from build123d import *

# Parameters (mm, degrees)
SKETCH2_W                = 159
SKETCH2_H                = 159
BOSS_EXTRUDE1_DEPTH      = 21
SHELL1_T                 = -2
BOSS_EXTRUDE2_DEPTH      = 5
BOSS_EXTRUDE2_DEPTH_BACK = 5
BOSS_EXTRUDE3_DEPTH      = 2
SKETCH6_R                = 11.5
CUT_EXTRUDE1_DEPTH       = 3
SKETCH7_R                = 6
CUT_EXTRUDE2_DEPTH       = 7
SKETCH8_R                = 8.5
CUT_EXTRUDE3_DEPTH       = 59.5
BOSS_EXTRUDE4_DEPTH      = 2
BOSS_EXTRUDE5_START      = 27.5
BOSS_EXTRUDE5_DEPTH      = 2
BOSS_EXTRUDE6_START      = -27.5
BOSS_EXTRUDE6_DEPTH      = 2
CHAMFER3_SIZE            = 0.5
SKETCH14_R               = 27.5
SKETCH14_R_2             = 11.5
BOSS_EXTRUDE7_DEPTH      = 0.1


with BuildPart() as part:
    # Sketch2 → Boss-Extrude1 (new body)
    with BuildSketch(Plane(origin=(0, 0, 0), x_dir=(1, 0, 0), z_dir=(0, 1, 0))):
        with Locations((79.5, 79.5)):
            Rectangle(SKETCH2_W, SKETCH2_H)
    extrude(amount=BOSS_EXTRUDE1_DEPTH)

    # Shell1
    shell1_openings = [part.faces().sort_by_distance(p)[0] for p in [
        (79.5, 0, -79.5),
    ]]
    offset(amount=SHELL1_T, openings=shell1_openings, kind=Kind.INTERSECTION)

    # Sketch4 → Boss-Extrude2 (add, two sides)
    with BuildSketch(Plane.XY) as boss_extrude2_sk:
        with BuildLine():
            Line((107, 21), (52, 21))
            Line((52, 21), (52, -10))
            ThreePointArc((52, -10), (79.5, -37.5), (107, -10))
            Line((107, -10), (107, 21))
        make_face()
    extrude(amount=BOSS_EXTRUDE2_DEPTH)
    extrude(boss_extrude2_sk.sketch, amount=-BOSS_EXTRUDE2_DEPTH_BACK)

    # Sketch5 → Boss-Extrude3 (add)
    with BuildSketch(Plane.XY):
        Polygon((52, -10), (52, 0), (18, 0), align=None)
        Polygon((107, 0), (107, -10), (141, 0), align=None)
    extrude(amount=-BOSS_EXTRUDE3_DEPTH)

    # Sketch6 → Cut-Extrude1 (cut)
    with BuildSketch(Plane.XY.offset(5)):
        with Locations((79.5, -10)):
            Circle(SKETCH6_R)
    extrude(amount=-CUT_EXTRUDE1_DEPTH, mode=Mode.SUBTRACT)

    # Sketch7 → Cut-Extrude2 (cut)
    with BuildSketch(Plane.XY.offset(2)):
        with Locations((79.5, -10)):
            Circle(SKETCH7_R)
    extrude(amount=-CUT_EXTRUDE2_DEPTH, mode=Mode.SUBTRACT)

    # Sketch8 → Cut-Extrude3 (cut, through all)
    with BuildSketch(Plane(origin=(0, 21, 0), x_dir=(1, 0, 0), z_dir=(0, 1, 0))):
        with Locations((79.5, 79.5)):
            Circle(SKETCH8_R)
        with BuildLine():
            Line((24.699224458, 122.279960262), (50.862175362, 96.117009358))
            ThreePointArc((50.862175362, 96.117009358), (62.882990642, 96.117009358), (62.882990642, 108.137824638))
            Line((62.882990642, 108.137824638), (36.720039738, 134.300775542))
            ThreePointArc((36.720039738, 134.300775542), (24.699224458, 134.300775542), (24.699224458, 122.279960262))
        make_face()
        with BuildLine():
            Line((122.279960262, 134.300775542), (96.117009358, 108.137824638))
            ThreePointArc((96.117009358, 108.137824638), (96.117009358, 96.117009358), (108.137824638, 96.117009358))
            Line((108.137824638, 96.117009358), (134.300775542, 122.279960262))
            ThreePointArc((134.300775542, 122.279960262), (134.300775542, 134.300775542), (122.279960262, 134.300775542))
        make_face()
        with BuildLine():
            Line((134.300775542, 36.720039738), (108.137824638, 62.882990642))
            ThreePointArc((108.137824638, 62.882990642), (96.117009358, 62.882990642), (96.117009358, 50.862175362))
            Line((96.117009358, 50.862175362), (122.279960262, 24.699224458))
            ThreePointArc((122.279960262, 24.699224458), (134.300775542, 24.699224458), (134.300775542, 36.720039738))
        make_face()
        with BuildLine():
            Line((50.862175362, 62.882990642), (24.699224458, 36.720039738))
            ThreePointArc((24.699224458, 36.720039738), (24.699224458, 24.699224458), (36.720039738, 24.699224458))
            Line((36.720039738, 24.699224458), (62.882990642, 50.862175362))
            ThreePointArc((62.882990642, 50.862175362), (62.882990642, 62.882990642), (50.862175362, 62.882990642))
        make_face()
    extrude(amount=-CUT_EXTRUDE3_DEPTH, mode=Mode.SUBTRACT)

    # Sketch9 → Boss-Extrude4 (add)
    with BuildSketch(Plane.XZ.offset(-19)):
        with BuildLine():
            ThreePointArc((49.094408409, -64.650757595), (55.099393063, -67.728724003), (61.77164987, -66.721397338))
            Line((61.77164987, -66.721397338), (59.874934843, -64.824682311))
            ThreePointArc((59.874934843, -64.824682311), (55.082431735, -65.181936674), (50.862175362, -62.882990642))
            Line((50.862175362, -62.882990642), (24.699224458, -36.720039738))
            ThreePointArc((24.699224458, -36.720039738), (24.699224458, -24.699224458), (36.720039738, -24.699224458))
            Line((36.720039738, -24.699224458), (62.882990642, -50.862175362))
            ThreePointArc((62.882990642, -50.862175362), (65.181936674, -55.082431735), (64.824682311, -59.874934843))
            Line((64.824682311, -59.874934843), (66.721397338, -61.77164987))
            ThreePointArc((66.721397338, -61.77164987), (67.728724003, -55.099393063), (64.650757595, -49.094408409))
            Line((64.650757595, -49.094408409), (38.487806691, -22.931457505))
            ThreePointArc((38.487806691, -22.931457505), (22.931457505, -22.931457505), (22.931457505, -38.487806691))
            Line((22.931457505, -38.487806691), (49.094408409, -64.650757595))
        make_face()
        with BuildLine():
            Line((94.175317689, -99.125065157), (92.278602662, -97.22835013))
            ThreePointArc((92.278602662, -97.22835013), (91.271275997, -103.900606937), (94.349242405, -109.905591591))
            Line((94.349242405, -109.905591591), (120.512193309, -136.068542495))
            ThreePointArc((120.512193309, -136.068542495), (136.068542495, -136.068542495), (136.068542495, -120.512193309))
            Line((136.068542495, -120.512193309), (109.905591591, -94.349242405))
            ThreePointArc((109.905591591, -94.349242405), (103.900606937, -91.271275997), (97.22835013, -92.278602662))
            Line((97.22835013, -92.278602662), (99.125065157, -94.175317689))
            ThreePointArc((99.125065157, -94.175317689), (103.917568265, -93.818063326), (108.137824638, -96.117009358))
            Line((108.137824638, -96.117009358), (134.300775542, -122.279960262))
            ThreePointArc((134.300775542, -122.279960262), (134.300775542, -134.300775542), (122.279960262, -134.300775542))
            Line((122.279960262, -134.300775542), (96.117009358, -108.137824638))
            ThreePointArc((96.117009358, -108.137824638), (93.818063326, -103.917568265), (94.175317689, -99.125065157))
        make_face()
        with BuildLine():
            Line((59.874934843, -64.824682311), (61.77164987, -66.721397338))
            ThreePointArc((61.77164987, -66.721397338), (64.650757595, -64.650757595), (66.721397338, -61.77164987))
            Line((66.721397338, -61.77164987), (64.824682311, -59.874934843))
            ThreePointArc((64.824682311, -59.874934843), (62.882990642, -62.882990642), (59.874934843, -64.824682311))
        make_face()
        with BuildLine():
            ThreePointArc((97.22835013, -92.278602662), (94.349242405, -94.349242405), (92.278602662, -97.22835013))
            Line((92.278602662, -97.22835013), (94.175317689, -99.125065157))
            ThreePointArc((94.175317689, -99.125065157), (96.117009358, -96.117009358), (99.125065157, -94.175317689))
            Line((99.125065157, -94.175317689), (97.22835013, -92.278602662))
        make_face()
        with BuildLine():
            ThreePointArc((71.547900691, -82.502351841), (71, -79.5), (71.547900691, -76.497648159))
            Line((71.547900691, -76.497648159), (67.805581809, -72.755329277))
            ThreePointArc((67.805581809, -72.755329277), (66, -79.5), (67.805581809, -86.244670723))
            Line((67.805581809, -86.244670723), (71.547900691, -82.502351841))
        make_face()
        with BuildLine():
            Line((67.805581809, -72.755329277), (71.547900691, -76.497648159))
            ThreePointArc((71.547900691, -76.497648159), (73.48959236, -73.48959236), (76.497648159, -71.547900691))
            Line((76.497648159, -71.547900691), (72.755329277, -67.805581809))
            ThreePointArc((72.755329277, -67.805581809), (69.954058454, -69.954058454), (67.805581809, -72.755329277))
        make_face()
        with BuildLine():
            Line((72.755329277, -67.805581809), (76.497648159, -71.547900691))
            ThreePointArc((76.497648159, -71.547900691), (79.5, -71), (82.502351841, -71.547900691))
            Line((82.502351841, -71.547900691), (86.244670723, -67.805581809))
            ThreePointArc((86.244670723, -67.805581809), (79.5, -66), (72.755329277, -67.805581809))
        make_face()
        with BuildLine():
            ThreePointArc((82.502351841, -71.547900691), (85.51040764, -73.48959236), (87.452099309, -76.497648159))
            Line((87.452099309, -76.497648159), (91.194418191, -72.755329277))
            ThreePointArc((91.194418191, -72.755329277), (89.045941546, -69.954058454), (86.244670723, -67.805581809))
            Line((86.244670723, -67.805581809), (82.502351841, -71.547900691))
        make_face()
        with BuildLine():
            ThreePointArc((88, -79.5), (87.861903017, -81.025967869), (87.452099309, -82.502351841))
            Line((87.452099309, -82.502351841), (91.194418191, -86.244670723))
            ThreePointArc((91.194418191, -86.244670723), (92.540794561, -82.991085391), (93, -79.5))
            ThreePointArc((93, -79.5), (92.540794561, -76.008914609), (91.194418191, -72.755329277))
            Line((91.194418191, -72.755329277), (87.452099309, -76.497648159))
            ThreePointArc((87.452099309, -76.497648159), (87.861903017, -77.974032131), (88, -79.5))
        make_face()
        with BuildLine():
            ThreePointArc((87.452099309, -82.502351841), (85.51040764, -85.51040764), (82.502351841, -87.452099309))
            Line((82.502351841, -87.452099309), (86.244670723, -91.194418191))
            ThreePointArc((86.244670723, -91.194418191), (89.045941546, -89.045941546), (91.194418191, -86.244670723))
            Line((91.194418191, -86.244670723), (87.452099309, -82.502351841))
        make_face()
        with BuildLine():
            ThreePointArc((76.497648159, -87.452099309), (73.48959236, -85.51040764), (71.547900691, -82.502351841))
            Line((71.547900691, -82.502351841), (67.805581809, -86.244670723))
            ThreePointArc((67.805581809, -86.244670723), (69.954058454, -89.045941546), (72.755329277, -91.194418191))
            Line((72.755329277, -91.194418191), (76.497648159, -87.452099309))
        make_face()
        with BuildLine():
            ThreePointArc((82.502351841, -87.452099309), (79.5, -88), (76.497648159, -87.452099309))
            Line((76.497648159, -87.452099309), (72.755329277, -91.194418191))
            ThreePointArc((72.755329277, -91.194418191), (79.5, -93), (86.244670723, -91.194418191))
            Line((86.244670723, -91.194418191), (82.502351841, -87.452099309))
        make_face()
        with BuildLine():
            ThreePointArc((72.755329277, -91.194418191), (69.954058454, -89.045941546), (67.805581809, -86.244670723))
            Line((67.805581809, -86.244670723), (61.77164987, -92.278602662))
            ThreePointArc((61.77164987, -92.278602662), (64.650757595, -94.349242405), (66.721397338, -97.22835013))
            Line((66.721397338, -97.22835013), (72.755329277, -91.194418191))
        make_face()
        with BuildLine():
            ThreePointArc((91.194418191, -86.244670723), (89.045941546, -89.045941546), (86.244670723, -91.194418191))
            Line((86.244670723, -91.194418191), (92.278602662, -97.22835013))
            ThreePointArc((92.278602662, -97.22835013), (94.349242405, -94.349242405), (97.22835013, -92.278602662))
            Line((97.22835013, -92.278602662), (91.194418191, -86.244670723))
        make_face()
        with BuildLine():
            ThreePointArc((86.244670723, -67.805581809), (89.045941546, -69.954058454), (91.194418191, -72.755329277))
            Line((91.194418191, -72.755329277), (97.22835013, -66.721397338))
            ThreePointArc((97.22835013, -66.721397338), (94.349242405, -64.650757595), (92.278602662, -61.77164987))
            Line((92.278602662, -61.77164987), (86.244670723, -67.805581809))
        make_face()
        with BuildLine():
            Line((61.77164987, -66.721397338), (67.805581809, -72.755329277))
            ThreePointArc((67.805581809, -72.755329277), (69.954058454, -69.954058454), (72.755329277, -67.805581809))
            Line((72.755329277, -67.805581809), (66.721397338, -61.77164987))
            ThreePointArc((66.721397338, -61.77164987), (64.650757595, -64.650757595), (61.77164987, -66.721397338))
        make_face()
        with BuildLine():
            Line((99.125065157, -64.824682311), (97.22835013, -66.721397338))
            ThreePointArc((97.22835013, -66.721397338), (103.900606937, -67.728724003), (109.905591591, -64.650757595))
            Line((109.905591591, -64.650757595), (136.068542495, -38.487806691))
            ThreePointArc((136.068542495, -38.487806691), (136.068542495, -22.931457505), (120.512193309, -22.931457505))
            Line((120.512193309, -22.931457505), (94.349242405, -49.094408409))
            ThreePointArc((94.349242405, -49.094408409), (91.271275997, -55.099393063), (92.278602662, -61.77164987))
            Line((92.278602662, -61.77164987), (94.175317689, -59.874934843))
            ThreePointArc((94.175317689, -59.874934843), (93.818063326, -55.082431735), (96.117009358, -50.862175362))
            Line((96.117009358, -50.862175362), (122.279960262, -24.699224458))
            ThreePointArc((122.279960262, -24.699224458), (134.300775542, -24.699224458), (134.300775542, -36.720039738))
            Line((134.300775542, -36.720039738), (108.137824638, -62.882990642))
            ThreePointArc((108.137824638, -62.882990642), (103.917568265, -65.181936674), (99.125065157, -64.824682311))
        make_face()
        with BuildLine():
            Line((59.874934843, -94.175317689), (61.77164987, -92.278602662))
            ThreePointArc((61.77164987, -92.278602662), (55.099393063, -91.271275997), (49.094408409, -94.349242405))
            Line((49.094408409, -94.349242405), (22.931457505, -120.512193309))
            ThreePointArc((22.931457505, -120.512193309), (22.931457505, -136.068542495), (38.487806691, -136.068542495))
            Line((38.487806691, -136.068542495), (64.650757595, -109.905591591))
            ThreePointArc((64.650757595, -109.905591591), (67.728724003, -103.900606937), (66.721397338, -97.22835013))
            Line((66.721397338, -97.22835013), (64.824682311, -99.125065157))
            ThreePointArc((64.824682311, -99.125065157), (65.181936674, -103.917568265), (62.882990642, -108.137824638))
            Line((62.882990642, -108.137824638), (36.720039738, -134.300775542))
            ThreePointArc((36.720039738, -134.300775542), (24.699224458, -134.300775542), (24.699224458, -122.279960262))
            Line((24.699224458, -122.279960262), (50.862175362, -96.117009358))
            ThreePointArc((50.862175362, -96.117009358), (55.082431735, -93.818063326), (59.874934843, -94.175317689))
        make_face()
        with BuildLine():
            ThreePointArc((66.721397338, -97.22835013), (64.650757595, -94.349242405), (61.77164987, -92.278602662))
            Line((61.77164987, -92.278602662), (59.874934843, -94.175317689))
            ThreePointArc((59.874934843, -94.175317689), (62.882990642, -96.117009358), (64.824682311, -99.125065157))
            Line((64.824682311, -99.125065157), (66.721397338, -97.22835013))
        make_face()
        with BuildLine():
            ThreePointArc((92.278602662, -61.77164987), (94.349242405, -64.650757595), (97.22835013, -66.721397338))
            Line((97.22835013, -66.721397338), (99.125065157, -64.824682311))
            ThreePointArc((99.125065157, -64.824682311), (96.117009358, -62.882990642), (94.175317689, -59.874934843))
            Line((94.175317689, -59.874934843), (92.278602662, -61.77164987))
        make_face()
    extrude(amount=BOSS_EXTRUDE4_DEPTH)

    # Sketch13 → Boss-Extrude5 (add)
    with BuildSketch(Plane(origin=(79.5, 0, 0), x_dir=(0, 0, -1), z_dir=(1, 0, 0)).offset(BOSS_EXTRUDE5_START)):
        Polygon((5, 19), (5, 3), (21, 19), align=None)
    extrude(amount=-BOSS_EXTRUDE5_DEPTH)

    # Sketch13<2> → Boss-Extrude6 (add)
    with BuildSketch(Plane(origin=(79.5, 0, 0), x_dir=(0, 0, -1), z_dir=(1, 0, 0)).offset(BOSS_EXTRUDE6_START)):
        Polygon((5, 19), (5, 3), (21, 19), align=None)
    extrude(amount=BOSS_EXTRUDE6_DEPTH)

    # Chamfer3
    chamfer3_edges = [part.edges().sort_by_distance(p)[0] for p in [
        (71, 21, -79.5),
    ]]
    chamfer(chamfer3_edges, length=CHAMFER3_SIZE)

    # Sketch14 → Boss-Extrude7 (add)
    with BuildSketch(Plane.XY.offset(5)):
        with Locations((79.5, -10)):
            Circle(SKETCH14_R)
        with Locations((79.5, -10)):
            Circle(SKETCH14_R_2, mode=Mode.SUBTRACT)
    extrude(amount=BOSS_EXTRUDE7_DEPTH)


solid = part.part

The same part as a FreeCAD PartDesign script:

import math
import FreeCAD as App
import Part
import Sketcher


def edges_at(feature, points):
    """Names of the edges that pass closest to the given points."""
    edges = feature.Shape.Edges
    near = lambda p: min(range(len(edges)), key=lambda i: edges[i].distToShape(Part.Vertex(*p))[0])
    return sorted({f"Edge{near(p) + 1}" for p in points})


def faces_at(feature, points):
    """Names of the faces that lie closest to the given points."""
    faces = feature.Shape.Faces
    near = lambda p: min(range(len(faces)), key=lambda i: faces[i].distToShape(Part.Vertex(*p))[0])
    return sorted({f"Face{near(p) + 1}" for p in points})


def add_polygon(sketch, points):
    """Adds a closed chain of lines whose ends are joined by coincident constraints."""
    first, n = sketch.GeometryCount, len(points)
    for a, b in zip(points, points[1:] + points[:1]):
        sketch.addGeometry(Part.LineSegment(App.Vector(*a, 0), App.Vector(*b, 0)), False)
    for i in range(n):
        sketch.addConstraint(Sketcher.Constraint("Coincident", first + i, 2, first + (i + 1) % n, 1))

doc = App.newDocument("Part")
body = doc.addObject("PartDesign::Body", "Body")

# Sketch on XZ plane
sketch1 = body.newObject("Sketcher::SketchObject", "Sketch")
sketch1.AttachmentSupport = (doc.getObject("XZ_Plane"), [""])
sketch1.MapMode = "FlatFace"
add_polygon(sketch1, [(0, -159), (0, 0), (159, 0), (159, -159)])  # lines 0-3
sketch1.addConstraint(Sketcher.Constraint("Vertical", 0))
sketch1.addConstraint(Sketcher.Constraint("Horizontal", 1))
sketch1.addConstraint(Sketcher.Constraint("Vertical", 2))
sketch1.addConstraint(Sketcher.Constraint("Horizontal", 3))
sketch1.addConstraint(Sketcher.Constraint("Coincident", 0, 2, -1, 1))
sketch1.addConstraint(Sketcher.Constraint("Equal", 3, 0))
sketch1.addConstraint(Sketcher.Constraint("DistanceX", 1, 1, 1, 2, 159.0))
pad1 = body.newObject("PartDesign::Pad", "Pad")
pad1.Profile = sketch1
pad1.Length = 21
pad1.Reversed = True
doc.recompute()

thickness = body.newObject("PartDesign::Thickness", "Thickness")
thickness.Base = (pad1, faces_at(pad1, [(79.5, 0, -79.5)]))
thickness.Value = 2
thickness.Reversed = True
thickness.Join = "Intersection"

# Sketch on XY plane
sketch2 = body.newObject("Sketcher::SketchObject", "Sketch001")
sketch2.AttachmentSupport = (doc.getObject("XY_Plane"), [""])
sketch2.MapMode = "FlatFace"
sketch2.addGeometry(Part.LineSegment(App.Vector(107, 21, 0), App.Vector(52, 21, 0)), False)
sketch2.addGeometry(Part.LineSegment(App.Vector(52, 21, 0), App.Vector(52, -10, 0)), False)
sketch2.addGeometry(Part.ArcOfCircle(Part.Circle(App.Vector(80, -10, 0), App.Vector(0, 0, 1), 28), math.radians(180), math.radians(360)), False)
sketch2.addGeometry(Part.LineSegment(App.Vector(107, -10, 0), App.Vector(107, 21, 0)), False)
sketch2.addConstraint(Sketcher.Constraint("Coincident", 0, 2, 1, 1))
sketch2.addConstraint(Sketcher.Constraint("Tangent", 1, 2, 2, 1))
sketch2.addConstraint(Sketcher.Constraint("Tangent", 2, 2, 3, 1))
sketch2.addConstraint(Sketcher.Constraint("Coincident", 3, 2, 0, 1))
sketch2.addConstraint(Sketcher.Constraint("Horizontal", 0))
sketch2.addConstraint(Sketcher.Constraint("Vertical", 1))
sketch2.addConstraint(Sketcher.Constraint("Vertical", 3))
sketch2.addConstraint(Sketcher.Constraint("Radius", 2, 27.5))
sketch2.addConstraint(Sketcher.Constraint("DistanceY", 1, 2, 1, 1, 31.0))
sketch2.addConstraint(Sketcher.Constraint("DistanceY", 2, 3, -1, 1, 10.0))
sketch2.addConstraint(Sketcher.Constraint("DistanceX", -1, 1, 0, 2, 52.0))
pad2 = body.newObject("PartDesign::Pad", "Pad001")
pad2.Profile = sketch2
pad2.Type = "TwoLengths"
pad2.Length = 5
pad2.Length2 = 5

# Sketch on XY plane
sketch3 = body.newObject("Sketcher::SketchObject", "Sketch002")
sketch3.AttachmentSupport = (doc.getObject("XY_Plane"), [""])
sketch3.MapMode = "FlatFace"
add_polygon(sketch3, [(52, -10), (52, 0), (18, 0)])  # lines 0-2
add_polygon(sketch3, [(107, 0), (107, -10), (141, 0)])  # lines 3-5
sketch3.addConstraint(Sketcher.Constraint("Vertical", 0))
sketch3.addConstraint(Sketcher.Constraint("Horizontal", 1))
sketch3.addConstraint(Sketcher.Constraint("Vertical", 3))
sketch3.addConstraint(Sketcher.Constraint("Horizontal", 5))
sketch3.addConstraint(Sketcher.Constraint("PointOnObject", 0, 2, -1))
sketch3.addConstraint(Sketcher.Constraint("PointOnObject", 4, 2, -1))
sketch3.addConstraint(Sketcher.Constraint("Horizontal", 2, 2, 3, 2))
sketch3.addConstraint(Sketcher.Constraint("Equal", 1, 5))
sketch3.addConstraint(Sketcher.Constraint("DistanceX", 1, 2, 1, 1, 34.0))
sketch3.addConstraint(Sketcher.Constraint("DistanceY", 0, 1, 0, 2, 10.0))
sketch3.addConstraint(Sketcher.Constraint("DistanceX", -1, 1, 0, 2, 52.0))
sketch3.addConstraint(Sketcher.Constraint("DistanceX", -1, 1, 3, 2, 107.0))
pad3 = body.newObject("PartDesign::Pad", "Pad002")
pad3.Profile = sketch3
pad3.Length = 2
pad3.Reversed = True

# Sketch on XY plane
sketch4 = body.newObject("Sketcher::SketchObject", "Sketch003")
sketch4.AttachmentSupport = (doc.getObject("XY_Plane"), [""])
sketch4.MapMode = "FlatFace"
sketch4.AttachmentOffset = App.Placement(App.Vector(0, 0, 5), App.Rotation())
sketch4.addGeometry(Part.Circle(App.Vector(80, -10, 0), App.Vector(0, 0, 1), 12), False)
sketch4.addConstraint(Sketcher.Constraint("Diameter", 0, 23.0))
sketch4.addConstraint(Sketcher.Constraint("DistanceY", 0, 3, -1, 1, 10.0))
sketch4.addConstraint(Sketcher.Constraint("DistanceX", -1, 1, 0, 3, 79.5))
pocket1 = body.newObject("PartDesign::Pocket", "Pocket")
pocket1.Profile = sketch4
pocket1.Length = 3

# Sketch on XY plane
sketch5 = body.newObject("Sketcher::SketchObject", "Sketch004")
sketch5.AttachmentSupport = (doc.getObject("XY_Plane"), [""])
sketch5.MapMode = "FlatFace"
sketch5.AttachmentOffset = App.Placement(App.Vector(0, 0, 2), App.Rotation())
sketch5.addGeometry(Part.Circle(App.Vector(80, -10, 0), App.Vector(0, 0, 1), 6), False)
sketch5.addConstraint(Sketcher.Constraint("Diameter", 0, 12.0))
sketch5.addConstraint(Sketcher.Constraint("DistanceY", 0, 3, -1, 1, 10.0))
sketch5.addConstraint(Sketcher.Constraint("DistanceX", -1, 1, 0, 3, 79.5))
pocket2 = body.newObject("PartDesign::Pocket", "Pocket001")
pocket2.Profile = sketch5
pocket2.Length = 7

# Sketch on XZ plane
sketch6 = body.newObject("Sketcher::SketchObject", "Sketch005")
sketch6.AttachmentSupport = (doc.getObject("XZ_Plane"), [""])
sketch6.MapMode = "FlatFace"
sketch6.AttachmentOffset = App.Placement(App.Vector(0, 0, -21), App.Rotation())
sketch6.addGeometry(Part.Circle(App.Vector(80, -80, 0), App.Vector(0, 0, 1), 8), False)
sketch6.addGeometry(Part.LineSegment(App.Vector(25, -122, 0), App.Vector(51, -96, 0)), False)
sketch6.addGeometry(Part.ArcOfCircle(Part.Circle(App.Vector(57, -102, 0), App.Vector(0, 0, 1), 8), math.radians(-45), math.radians(135)), False)
sketch6.addGeometry(Part.LineSegment(App.Vector(63, -108, 0), App.Vector(37, -134, 0)), False)
sketch6.addGeometry(Part.ArcOfCircle(Part.Circle(App.Vector(31, -128, 0), App.Vector(0, 0, 1), 8), math.radians(135), math.radians(315)), False)
sketch6.addGeometry(Part.LineSegment(App.Vector(122, -134, 0), App.Vector(96, -108, 0)), False)
sketch6.addGeometry(Part.ArcOfCircle(Part.Circle(App.Vector(102, -102, 0), App.Vector(0, 0, 1), 8), math.radians(45), math.radians(225)), False)
sketch6.addGeometry(Part.LineSegment(App.Vector(108, -96, 0), App.Vector(134, -122, 0)), False)
sketch6.addGeometry(Part.ArcOfCircle(Part.Circle(App.Vector(128, -128, 0), App.Vector(0, 0, 1), 8), math.radians(-135), math.radians(45)), False)
sketch6.addGeometry(Part.LineSegment(App.Vector(134, -37, 0), App.Vector(108, -63, 0)), False)
sketch6.addGeometry(Part.ArcOfCircle(Part.Circle(App.Vector(102, -57, 0), App.Vector(0, 0, 1), 8), math.radians(135), math.radians(315)), False)
sketch6.addGeometry(Part.LineSegment(App.Vector(96, -51, 0), App.Vector(122, -25, 0)), False)
sketch6.addGeometry(Part.ArcOfCircle(Part.Circle(App.Vector(128, -31, 0), App.Vector(0, 0, 1), 8), math.radians(-45), math.radians(135)), False)
sketch6.addGeometry(Part.LineSegment(App.Vector(51, -63, 0), App.Vector(25, -37, 0)), False)
sketch6.addGeometry(Part.ArcOfCircle(Part.Circle(App.Vector(31, -31, 0), App.Vector(0, 0, 1), 8), math.radians(45), math.radians(225)), False)
sketch6.addGeometry(Part.LineSegment(App.Vector(37, -25, 0), App.Vector(63, -51, 0)), False)
sketch6.addGeometry(Part.ArcOfCircle(Part.Circle(App.Vector(57, -57, 0), App.Vector(0, 0, 1), 8), math.radians(-135), math.radians(45)), False)
sketch6.addConstraint(Sketcher.Constraint("Tangent", 1, 2, 2, 2))
sketch6.addConstraint(Sketcher.Constraint("Tangent", 2, 1, 3, 1))
sketch6.addConstraint(Sketcher.Constraint("Tangent", 3, 2, 4, 2))
sketch6.addConstraint(Sketcher.Constraint("Tangent", 4, 1, 1, 1))
sketch6.addConstraint(Sketcher.Constraint("Tangent", 5, 2, 6, 2))
sketch6.addConstraint(Sketcher.Constraint("Tangent", 6, 1, 7, 1))
sketch6.addConstraint(Sketcher.Constraint("Tangent", 7, 2, 8, 2))
sketch6.addConstraint(Sketcher.Constraint("Tangent", 8, 1, 5, 1))
sketch6.addConstraint(Sketcher.Constraint("Tangent", 9, 2, 10, 2))
sketch6.addConstraint(Sketcher.Constraint("Tangent", 10, 1, 11, 1))
sketch6.addConstraint(Sketcher.Constraint("Tangent", 11, 2, 12, 2))
sketch6.addConstraint(Sketcher.Constraint("Tangent", 12, 1, 9, 1))
sketch6.addConstraint(Sketcher.Constraint("Tangent", 13, 2, 14, 2))
sketch6.addConstraint(Sketcher.Constraint("Tangent", 14, 1, 15, 1))
sketch6.addConstraint(Sketcher.Constraint("Tangent", 15, 2, 16, 2))
sketch6.addConstraint(Sketcher.Constraint("Tangent", 16, 1, 13, 1))
sketch6.addConstraint(Sketcher.Constraint("Equal", 0, 2))
sketch6.addConstraint(Sketcher.Constraint("Equal", 2, 4))
sketch6.addConstraint(Sketcher.Constraint("Equal", 4, 6))
sketch6.addConstraint(Sketcher.Constraint("Equal", 6, 8))
sketch6.addConstraint(Sketcher.Constraint("Equal", 8, 10))
sketch6.addConstraint(Sketcher.Constraint("Equal", 10, 12))
sketch6.addConstraint(Sketcher.Constraint("Equal", 12, 14))
sketch6.addConstraint(Sketcher.Constraint("Equal", 14, 16))
sketch6.addConstraint(Sketcher.Constraint("Perpendicular", 3, 5))
sketch6.addConstraint(Sketcher.Constraint("Perpendicular", 7, 9))
sketch6.addConstraint(Sketcher.Constraint("Perpendicular", 11, 13))
sketch6.addConstraint(Sketcher.Constraint("Horizontal", 2, 3, 6, 3))
sketch6.addConstraint(Sketcher.Constraint("Horizontal", 4, 3, 8, 3))
sketch6.addConstraint(Sketcher.Constraint("Horizontal", 12, 3, 14, 3))
sketch6.addConstraint(Sketcher.Constraint("Horizontal", 10, 3, 16, 3))
sketch6.addConstraint(Sketcher.Constraint("Horizontal", 2, 1, 5, 2))
sketch6.addConstraint(Sketcher.Constraint("Vertical", 6, 3, 10, 3))
sketch6.addConstraint(Sketcher.Constraint("Vertical", 8, 3, 12, 3))
sketch6.addConstraint(Sketcher.Constraint("Vertical", 4, 3, 14, 3))
sketch6.addConstraint(Sketcher.Constraint("Diameter", 0, 17.0))
sketch6.addConstraint(Sketcher.Constraint("Distance", 1, 37.0))
sketch6.addConstraint(Sketcher.Constraint("DistanceX", -1, 1, 0, 3, 79.5))
sketch6.addConstraint(Sketcher.Constraint("DistanceY", 0, 3, -1, 1, 79.5))
sketch6.addConstraint(Sketcher.Constraint("DistanceY", 1, 2, -1, 1, 96.117009))
sketch6.addConstraint(Sketcher.Constraint("DistanceX", -1, 1, 2, 1, 62.882991))
sketch6.addConstraint(Sketcher.Constraint("DistanceX", -1, 1, 5, 2, 96.117009))
sketch6.addConstraint(Sketcher.Constraint("DistanceY", 9, 2, -1, 1, 62.882991))
pocket3 = body.newObject("PartDesign::Pocket", "Pocket002")
pocket3.Profile = sketch6
pocket3.Type = "ThroughAll"
pocket3.Reversed = True

# Sketch on XZ plane
sketch7 = body.newObject("Sketcher::SketchObject", "Sketch006")
sketch7.AttachmentSupport = (doc.getObject("XZ_Plane"), [""])
sketch7.MapMode = "FlatFace"
sketch7.AttachmentOffset = App.Placement(App.Vector(0, 0, -19), App.Rotation())
sketch7.addGeometry(Part.ArcOfCircle(Part.Circle(App.Vector(56.9, -56.9, 0), App.Vector(0, 0, 1), 11), math.radians(-135), math.radians(-64)), False)
sketch7.addGeometry(Part.LineSegment(App.Vector(61.8, -66.7, 0), App.Vector(67.8, -72.8, 0)), False)
sketch7.addGeometry(Part.ArcOfCircle(Part.Circle(App.Vector(79.5, -79.5, 0), App.Vector(0, 0, 1), 13.5), math.radians(150), math.radians(210)), False)
sketch7.addGeometry(Part.LineSegment(App.Vector(67.8, -86.2, 0), App.Vector(61.8, -92.3, 0)), False)
sketch7.addGeometry(Part.ArcOfCircle(Part.Circle(App.Vector(56.9, -102.1, 0), App.Vector(0, 0, 1), 11), math.radians(64), math.radians(135)), False)
sketch7.addGeometry(Part.LineSegment(App.Vector(49.1, -94.3, 0), App.Vector(22.9, -120.5, 0)), False)
sketch7.addGeometry(Part.ArcOfCircle(Part.Circle(App.Vector(30.7, -128.3, 0), App.Vector(0, 0, 1), 11), math.radians(135), math.radians(315)), False)
sketch7.addGeometry(Part.LineSegment(App.Vector(38.5, -136.1, 0), App.Vector(64.7, -109.9, 0)), False)
sketch7.addGeometry(Part.ArcOfCircle(Part.Circle(App.Vector(56.9, -102.1, 0), App.Vector(0, 0, 1), 11), math.radians(-45), math.radians(26)), False)
sketch7.addGeometry(Part.LineSegment(App.Vector(66.7, -97.2, 0), App.Vector(72.8, -91.2, 0)), False)
sketch7.addGeometry(Part.ArcOfCircle(Part.Circle(App.Vector(79.5, -79.5, 0), App.Vector(0, 0, 1), 13.5), math.radians(-120), math.radians(-60)), False)
sketch7.addGeometry(Part.LineSegment(App.Vector(86.2, -91.2, 0), App.Vector(92.3, -97.2, 0)), False)
sketch7.addGeometry(Part.ArcOfCircle(Part.Circle(App.Vector(102.1, -102.1, 0), App.Vector(0, 0, 1), 11), math.radians(154), math.radians(225)), False)
sketch7.addGeometry(Part.LineSegment(App.Vector(94.3, -109.9, 0), App.Vector(120.5, -136.1, 0)), False)
sketch7.addGeometry(Part.ArcOfCircle(Part.Circle(App.Vector(128.3, -128.3, 0), App.Vector(0, 0, 1), 11), math.radians(-135), math.radians(45)), False)
sketch7.addGeometry(Part.LineSegment(App.Vector(136.1, -120.5, 0), App.Vector(109.9, -94.3, 0)), False)
sketch7.addGeometry(Part.ArcOfCircle(Part.Circle(App.Vector(102.1, -102.1, 0), App.Vector(0, 0, 1), 11), math.radians(45), math.radians(116)), False)
sketch7.addGeometry(Part.LineSegment(App.Vector(97.2, -92.3, 0), App.Vector(91.2, -86.2, 0)), False)
sketch7.addGeometry(Part.ArcOfCircle(Part.Circle(App.Vector(79.5, -79.5, 0), App.Vector(0, 0, 1), 13.5), math.radians(-30), math.radians(0)), False)
sketch7.addGeometry(Part.ArcOfCircle(Part.Circle(App.Vector(79.5, -79.5, 0), App.Vector(0, 0, 1), 13.5), math.radians(0), math.radians(30)), False)
sketch7.addGeometry(Part.LineSegment(App.Vector(91.2, -72.8, 0), App.Vector(97.2, -66.7, 0)), False)
sketch7.addGeometry(Part.ArcOfCircle(Part.Circle(App.Vector(102.1, -56.9, 0), App.Vector(0, 0, 1), 11), math.radians(-116), math.radians(-45)), False)
sketch7.addGeometry(Part.LineSegment(App.Vector(109.9, -64.7, 0), App.Vector(136.1, -38.5, 0)), False)
sketch7.addGeometry(Part.ArcOfCircle(Part.Circle(App.Vector(128.3, -30.7, 0), App.Vector(0, 0, 1), 11), math.radians(-45), math.radians(135)), False)
sketch7.addGeometry(Part.LineSegment(App.Vector(120.5, -22.9, 0), App.Vector(94.3, -49.1, 0)), False)
sketch7.addGeometry(Part.ArcOfCircle(Part.Circle(App.Vector(102.1, -56.9, 0), App.Vector(0, 0, 1), 11), math.radians(135), math.radians(206)), False)
sketch7.addGeometry(Part.LineSegment(App.Vector(92.3, -61.8, 0), App.Vector(86.2, -67.8, 0)), False)
sketch7.addGeometry(Part.ArcOfCircle(Part.Circle(App.Vector(79.5, -79.5, 0), App.Vector(0, 0, 1), 13.5), math.radians(60), math.radians(120)), False)
sketch7.addGeometry(Part.LineSegment(App.Vector(72.8, -67.8, 0), App.Vector(66.7, -61.8, 0)), False)
sketch7.addGeometry(Part.ArcOfCircle(Part.Circle(App.Vector(56.9, -56.9, 0), App.Vector(0, 0, 1), 11), math.radians(-26), math.radians(45)), False)
sketch7.addGeometry(Part.LineSegment(App.Vector(64.7, -49.1, 0), App.Vector(38.5, -22.9, 0)), False)
sketch7.addGeometry(Part.ArcOfCircle(Part.Circle(App.Vector(30.7, -30.7, 0), App.Vector(0, 0, 1), 11), math.radians(45), math.radians(225)), False)
sketch7.addGeometry(Part.LineSegment(App.Vector(22.9, -38.5, 0), App.Vector(49.1, -64.7, 0)), False)
sketch7.addGeometry(Part.ArcOfCircle(Part.Circle(App.Vector(56.9, -56.9, 0), App.Vector(0, 0, 1), 8.5), math.radians(-135), math.radians(-69)), False)
sketch7.addGeometry(Part.LineSegment(App.Vector(50.9, -62.9, 0), App.Vector(24.7, -36.7, 0)), False)
sketch7.addGeometry(Part.ArcOfCircle(Part.Circle(App.Vector(30.7, -30.7, 0), App.Vector(0, 0, 1), 8.5), math.radians(45), math.radians(225)), False)
sketch7.addGeometry(Part.LineSegment(App.Vector(36.7, -24.7, 0), App.Vector(62.9, -50.9, 0)), False)
sketch7.addGeometry(Part.ArcOfCircle(Part.Circle(App.Vector(56.9, -56.9, 0), App.Vector(0, 0, 1), 8.5), math.radians(-21), math.radians(45)), False)
sketch7.addGeometry(Part.ArcOfCircle(Part.Circle(App.Vector(56.9, -56.9, 0), App.Vector(0, 0, 1), 8.5), math.radians(-69), math.radians(-21)), False)
sketch7.addGeometry(Part.ArcOfCircle(Part.Circle(App.Vector(79.5, -79.5, 0), App.Vector(0, 0, 1), 8.5), math.radians(-159), math.radians(-111)), False)
sketch7.addGeometry(Part.ArcOfCircle(Part.Circle(App.Vector(79.5, -79.5, 0), App.Vector(0, 0, 1), 8.5), math.radians(159), math.radians(201)), False)
sketch7.addGeometry(Part.ArcOfCircle(Part.Circle(App.Vector(79.5, -79.5, 0), App.Vector(0, 0, 1), 8.5), math.radians(111), math.radians(159)), False)
sketch7.addGeometry(Part.ArcOfCircle(Part.Circle(App.Vector(79.5, -79.5, 0), App.Vector(0, 0, 1), 8.5), math.radians(69), math.radians(111)), False)
sketch7.addGeometry(Part.ArcOfCircle(Part.Circle(App.Vector(79.5, -79.5, 0), App.Vector(0, 0, 1), 8.5), math.radians(21), math.radians(69)), False)
sketch7.addGeometry(Part.ArcOfCircle(Part.Circle(App.Vector(79.5, -79.5, 0), App.Vector(0, 0, 1), 8.5), math.radians(0), math.radians(21)), False)
sketch7.addGeometry(Part.ArcOfCircle(Part.Circle(App.Vector(79.5, -79.5, 0), App.Vector(0, 0, 1), 8.5), math.radians(-21), math.radians(0)), False)
sketch7.addGeometry(Part.ArcOfCircle(Part.Circle(App.Vector(79.5, -79.5, 0), App.Vector(0, 0, 1), 8.5), math.radians(-69), math.radians(-21)), False)
sketch7.addGeometry(Part.ArcOfCircle(Part.Circle(App.Vector(79.5, -79.5, 0), App.Vector(0, 0, 1), 8.5), math.radians(-111), math.radians(-69)), False)
sketch7.addGeometry(Part.ArcOfCircle(Part.Circle(App.Vector(102.1, -102.1, 0), App.Vector(0, 0, 1), 8.5), math.radians(45), math.radians(111)), False)
sketch7.addGeometry(Part.LineSegment(App.Vector(108.1, -96.1, 0), App.Vector(134.3, -122.3, 0)), False)
sketch7.addGeometry(Part.ArcOfCircle(Part.Circle(App.Vector(128.3, -128.3, 0), App.Vector(0, 0, 1), 8.5), math.radians(-135), math.radians(45)), False)
sketch7.addGeometry(Part.LineSegment(App.Vector(122.3, -134.3, 0), App.Vector(96.1, -108.1, 0)), False)
sketch7.addGeometry(Part.ArcOfCircle(Part.Circle(App.Vector(102.1, -102.1, 0), App.Vector(0, 0, 1), 8.5), math.radians(159), math.radians(225)), False)
sketch7.addGeometry(Part.ArcOfCircle(Part.Circle(App.Vector(102.1, -102.1, 0), App.Vector(0, 0, 1), 8.5), math.radians(111), math.radians(159)), False)
sketch7.addGeometry(Part.ArcOfCircle(Part.Circle(App.Vector(56.9, -102.1, 0), App.Vector(0, 0, 1), 8.5), math.radians(21), math.radians(69)), False)
sketch7.addGeometry(Part.ArcOfCircle(Part.Circle(App.Vector(56.9, -102.1, 0), App.Vector(0, 0, 1), 8.5), math.radians(-45), math.radians(21)), False)
sketch7.addGeometry(Part.LineSegment(App.Vector(62.9, -108.1, 0), App.Vector(36.7, -134.3, 0)), False)
sketch7.addGeometry(Part.ArcOfCircle(Part.Circle(App.Vector(30.7, -128.3, 0), App.Vector(0, 0, 1), 8.5), math.radians(135), math.radians(315)), False)
sketch7.addGeometry(Part.LineSegment(App.Vector(24.7, -122.3, 0), App.Vector(50.9, -96.1, 0)), False)
sketch7.addGeometry(Part.ArcOfCircle(Part.Circle(App.Vector(56.9, -102.1, 0), App.Vector(0, 0, 1), 8.5), math.radians(69), math.radians(135)), False)
sketch7.addGeometry(Part.ArcOfCircle(Part.Circle(App.Vector(102.1, -56.9, 0), App.Vector(0, 0, 1), 8.5), math.radians(-159), math.radians(-111)), False)
sketch7.addGeometry(Part.ArcOfCircle(Part.Circle(App.Vector(102.1, -56.9, 0), App.Vector(0, 0, 1), 8.5), math.radians(135), math.radians(201)), False)
sketch7.addGeometry(Part.LineSegment(App.Vector(96.1, -50.9, 0), App.Vector(122.3, -24.7, 0)), False)
sketch7.addGeometry(Part.ArcOfCircle(Part.Circle(App.Vector(128.3, -30.7, 0), App.Vector(0, 0, 1), 8.5), math.radians(-45), math.radians(135)), False)
sketch7.addGeometry(Part.LineSegment(App.Vector(134.3, -36.7, 0), App.Vector(108.1, -62.9, 0)), False)
sketch7.addGeometry(Part.ArcOfCircle(Part.Circle(App.Vector(102.1, -56.9, 0), App.Vector(0, 0, 1), 8.5), math.radians(-111), math.radians(-45)), False)
sketch7.addConstraint(Sketcher.Constraint("Coincident", 0, 2, 1, 1))
sketch7.addConstraint(Sketcher.Constraint("Coincident", 1, 2, 2, 1))
sketch7.addConstraint(Sketcher.Constraint("Coincident", 2, 2, 3, 1))
sketch7.addConstraint(Sketcher.Constraint("Coincident", 3, 2, 4, 1))
sketch7.addConstraint(Sketcher.Constraint("Tangent", 4, 2, 5, 1))
sketch7.addConstraint(Sketcher.Constraint("Tangent", 5, 2, 6, 1))
sketch7.addConstraint(Sketcher.Constraint("Tangent", 6, 2, 7, 1))
sketch7.addConstraint(Sketcher.Constraint("Tangent", 7, 2, 8, 1))
sketch7.addConstraint(Sketcher.Constraint("Coincident", 8, 2, 9, 1))
sketch7.addConstraint(Sketcher.Constraint("Coincident", 9, 2, 10, 1))
sketch7.addConstraint(Sketcher.Constraint("Coincident", 10, 2, 11, 1))
sketch7.addConstraint(Sketcher.Constraint("Coincident", 11, 2, 12, 1))
sketch7.addConstraint(Sketcher.Constraint("Tangent", 12, 2, 13, 1))
sketch7.addConstraint(Sketcher.Constraint("Tangent", 13, 2, 14, 1))
sketch7.addConstraint(Sketcher.Constraint("Tangent", 14, 2, 15, 1))
sketch7.addConstraint(Sketcher.Constraint("Tangent", 15, 2, 16, 1))
sketch7.addConstraint(Sketcher.Constraint("Coincident", 16, 2, 17, 1))
sketch7.addConstraint(Sketcher.Constraint("Coincident", 17, 2, 18, 1))
sketch7.addConstraint(Sketcher.Constraint("Tangent", 18, 2, 19, 1))
sketch7.addConstraint(Sketcher.Constraint("Coincident", 19, 2, 20, 1))
sketch7.addConstraint(Sketcher.Constraint("Coincident", 20, 2, 21, 1))
sketch7.addConstraint(Sketcher.Constraint("Tangent", 21, 2, 22, 1))
sketch7.addConstraint(Sketcher.Constraint("Tangent", 22, 2, 23, 1))
sketch7.addConstraint(Sketcher.Constraint("Tangent", 23, 2, 24, 1))
sketch7.addConstraint(Sketcher.Constraint("Tangent", 24, 2, 25, 1))
sketch7.addConstraint(Sketcher.Constraint("Coincident", 25, 2, 26, 1))
sketch7.addConstraint(Sketcher.Constraint("Coincident", 26, 2, 27, 1))
sketch7.addConstraint(Sketcher.Constraint("Coincident", 27, 2, 28, 1))
sketch7.addConstraint(Sketcher.Constraint("Coincident", 28, 2, 29, 1))
sketch7.addConstraint(Sketcher.Constraint("Tangent", 29, 2, 30, 1))
sketch7.addConstraint(Sketcher.Constraint("Tangent", 30, 2, 31, 1))
sketch7.addConstraint(Sketcher.Constraint("Tangent", 31, 2, 32, 1))
sketch7.addConstraint(Sketcher.Constraint("Tangent", 32, 2, 0, 1))
sketch7.addConstraint(Sketcher.Constraint("Tangent", 33, 1, 34, 1))
sketch7.addConstraint(Sketcher.Constraint("Tangent", 34, 2, 35, 2))
sketch7.addConstraint(Sketcher.Constraint("Tangent", 35, 1, 36, 1))
sketch7.addConstraint(Sketcher.Constraint("Tangent", 36, 2, 37, 2))
sketch7.addConstraint(Sketcher.Constraint("Tangent", 37, 1, 38, 2))
sketch7.addConstraint(Sketcher.Constraint("Tangent", 38, 1, 33, 2))
sketch7.addConstraint(Sketcher.Constraint("Tangent", 39, 1, 40, 2))
sketch7.addConstraint(Sketcher.Constraint("Tangent", 40, 1, 41, 2))
sketch7.addConstraint(Sketcher.Constraint("Tangent", 41, 1, 42, 2))
sketch7.addConstraint(Sketcher.Constraint("Tangent", 42, 1, 43, 2))
sketch7.addConstraint(Sketcher.Constraint("Tangent", 43, 1, 44, 2))
sketch7.addConstraint(Sketcher.Constraint("Tangent", 44, 1, 45, 2))
sketch7.addConstraint(Sketcher.Constraint("Tangent", 45, 1, 46, 2))
sketch7.addConstraint(Sketcher.Constraint("Tangent", 46, 1, 47, 2))
sketch7.addConstraint(Sketcher.Constraint("Tangent", 47, 1, 39, 2))
sketch7.addConstraint(Sketcher.Constraint("Tangent", 48, 1, 49, 1))
sketch7.addConstraint(Sketcher.Constraint("Tangent", 49, 2, 50, 2))
sketch7.addConstraint(Sketcher.Constraint("Tangent", 50, 1, 51, 1))
sketch7.addConstraint(Sketcher.Constraint("Tangent", 51, 2, 52, 2))
sketch7.addConstraint(Sketcher.Constraint("Tangent", 52, 1, 53, 2))
sketch7.addConstraint(Sketcher.Constraint("Tangent", 53, 1, 48, 2))
sketch7.addConstraint(Sketcher.Constraint("Tangent", 54, 1, 55, 2))
sketch7.addConstraint(Sketcher.Constraint("Tangent", 55, 1, 56, 1))
sketch7.addConstraint(Sketcher.Constraint("Tangent", 56, 2, 57, 2))
sketch7.addConstraint(Sketcher.Constraint("Tangent", 57, 1, 58, 1))
sketch7.addConstraint(Sketcher.Constraint("Tangent", 58, 2, 59, 2))
sketch7.addConstraint(Sketcher.Constraint("Tangent", 59, 1, 54, 2))
sketch7.addConstraint(Sketcher.Constraint("Tangent", 60, 1, 61, 2))
sketch7.addConstraint(Sketcher.Constraint("Tangent", 61, 1, 62, 1))
sketch7.addConstraint(Sketcher.Constraint("Tangent", 62, 2, 63, 2))
sketch7.addConstraint(Sketcher.Constraint("Tangent", 63, 1, 64, 1))
sketch7.addConstraint(Sketcher.Constraint("Tangent", 64, 2, 65, 2))
sketch7.addConstraint(Sketcher.Constraint("Tangent", 65, 1, 60, 2))
sketch7.addConstraint(Sketcher.Constraint("Coincident", 8, 3, 4, 3))
sketch7.addConstraint(Sketcher.Constraint("Coincident", 10, 3, 2, 3))
sketch7.addConstraint(Sketcher.Constraint("Coincident", 16, 3, 12, 3))
sketch7.addConstraint(Sketcher.Constraint("Coincident", 18, 3, 2, 3))
sketch7.addConstraint(Sketcher.Constraint("Coincident", 25, 3, 21, 3))
sketch7.addConstraint(Sketcher.Constraint("Coincident", 27, 3, 2, 3))
sketch7.addConstraint(Sketcher.Constraint("Coincident", 29, 3, 0, 3))
sketch7.addConstraint(Sketcher.Constraint("Coincident", 33, 3, 0, 3))
sketch7.addConstraint(Sketcher.Constraint("Coincident", 35, 3, 31, 3))
sketch7.addConstraint(Sketcher.Constraint("Coincident", 37, 3, 0, 3))
sketch7.addConstraint(Sketcher.Constraint("Coincident", 39, 3, 2, 3))
sketch7.addConstraint(Sketcher.Constraint("Coincident", 41, 3, 2, 3))
sketch7.addConstraint(Sketcher.Constraint("Coincident", 43, 3, 2, 3))
sketch7.addConstraint(Sketcher.Constraint("Coincident", 45, 3, 2, 3))
sketch7.addConstraint(Sketcher.Constraint("Coincident", 48, 3, 12, 3))
sketch7.addConstraint(Sketcher.Constraint("Coincident", 50, 3, 14, 3))
sketch7.addConstraint(Sketcher.Constraint("Coincident", 52, 3, 12, 3))
sketch7.addConstraint(Sketcher.Constraint("Coincident", 54, 3, 4, 3))
sketch7.addConstraint(Sketcher.Constraint("Coincident", 57, 3, 6, 3))
sketch7.addConstraint(Sketcher.Constraint("Coincident", 60, 3, 21, 3))
sketch7.addConstraint(Sketcher.Constraint("Coincident", 63, 3, 23, 3))
sketch7.addConstraint(Sketcher.Constraint("Equal", 0, 4))
sketch7.addConstraint(Sketcher.Constraint("Equal", 4, 6))
sketch7.addConstraint(Sketcher.Constraint("Equal", 6, 8))
sketch7.addConstraint(Sketcher.Constraint("Equal", 2, 10))
sketch7.addConstraint(Sketcher.Constraint("Equal", 8, 12))
sketch7.addConstraint(Sketcher.Constraint("Equal", 12, 14))
sketch7.addConstraint(Sketcher.Constraint("Equal", 14, 16))
sketch7.addConstraint(Sketcher.Constraint("Equal", 10, 18))
sketch7.addConstraint(Sketcher.Constraint("Equal", 18, 19))
sketch7.addConstraint(Sketcher.Constraint("Equal", 16, 21))
sketch7.addConstraint(Sketcher.Constraint("Equal", 21, 23))
sketch7.addConstraint(Sketcher.Constraint("Equal", 23, 25))
sketch7.addConstraint(Sketcher.Constraint("Equal", 19, 27))
sketch7.addConstraint(Sketcher.Constraint("Equal", 25, 29))
sketch7.addConstraint(Sketcher.Constraint("Equal", 29, 31))
sketch7.addConstraint(Sketcher.Constraint("Equal", 33, 35))
sketch7.addConstraint(Sketcher.Constraint("Equal", 38, 39))
sketch7.addConstraint(Sketcher.Constraint("Equal", 47, 48))
sketch7.addConstraint(Sketcher.Constraint("Equal", 48, 50))
sketch7.addConstraint(Sketcher.Constraint("Equal", 53, 54))
sketch7.addConstraint(Sketcher.Constraint("Equal", 54, 55))
sketch7.addConstraint(Sketcher.Constraint("Equal", 55, 57))
sketch7.addConstraint(Sketcher.Constraint("Equal", 57, 59))
sketch7.addConstraint(Sketcher.Constraint("Equal", 59, 60))
sketch7.addConstraint(Sketcher.Constraint("Equal", 60, 61))
sketch7.addConstraint(Sketcher.Constraint("Equal", 61, 63))
sketch7.addConstraint(Sketcher.Constraint("Equal", 63, 65))
sketch7.addConstraint(Sketcher.Constraint("Perpendicular", 1, 3))
sketch7.addConstraint(Sketcher.Constraint("Parallel", 3, 5))
sketch7.addConstraint(Sketcher.Constraint("Parallel", 7, 9))
sketch7.addConstraint(Sketcher.Constraint("Perpendicular", 9, 11))
sketch7.addConstraint(Sketcher.Constraint("Parallel", 11, 13))
sketch7.addConstraint(Sketcher.Constraint("Parallel", 15, 17))
sketch7.addConstraint(Sketcher.Constraint("Perpendicular", 17, 20))
sketch7.addConstraint(Sketcher.Constraint("Parallel", 20, 22))
sketch7.addConstraint(Sketcher.Constraint("Parallel", 24, 26))
sketch7.addConstraint(Sketcher.Constraint("Perpendicular", 26, 28))
sketch7.addConstraint(Sketcher.Constraint("Parallel", 28, 30))
sketch7.addConstraint(Sketcher.Constraint("Horizontal", 8, 3, 12, 3))
sketch7.addConstraint(Sketcher.Constraint("Horizontal", 6, 3, 14, 3))
sketch7.addConstraint(Sketcher.Constraint("Horizontal", 0, 3, 21, 3))
sketch7.addConstraint(Sketcher.Constraint("Horizontal", 23, 3, 31, 3))
sketch7.addConstraint(Sketcher.Constraint("Horizontal", 9, 2, 10, 2))
sketch7.addConstraint(Sketcher.Constraint("Horizontal", 8, 2, 11, 2))
sketch7.addConstraint(Sketcher.Constraint("Horizontal", 7, 2, 12, 2))
sketch7.addConstraint(Sketcher.Constraint("Horizontal", 3, 2, 16, 2))
sketch7.addConstraint(Sketcher.Constraint("Horizontal", 47, 3, 18, 2))
sketch7.addConstraint(Sketcher.Constraint("Horizontal", 1, 2, 19, 2))
sketch7.addConstraint(Sketcher.Constraint("Horizontal", 0, 2, 20, 2))
sketch7.addConstraint(Sketcher.Constraint("Horizontal", 26, 2, 27, 2))
sketch7.addConstraint(Sketcher.Constraint("Horizontal", 41, 1, 42, 1))
sketch7.addConstraint(Sketcher.Constraint("Horizontal", 40, 1, 43, 1))
sketch7.addConstraint(Sketcher.Constraint("Horizontal", 18, 2, 44, 1))
sketch7.addConstraint(Sketcher.Constraint("Horizontal", 39, 1, 45, 1))
sketch7.addConstraint(Sketcher.Constraint("Horizontal", 46, 1, 47, 1))
sketch7.addConstraint(Sketcher.Constraint("Horizontal", 52, 1, 54, 1))
sketch7.addConstraint(Sketcher.Constraint("Horizontal", 53, 1, 59, 1))
sketch7.addConstraint(Sketcher.Constraint("Horizontal", 37, 1, 60, 1))
sketch7.addConstraint(Sketcher.Constraint("Horizontal", 38, 1, 65, 1))
sketch7.addConstraint(Sketcher.Constraint("Vertical", 0, 3, 4, 3))
sketch7.addConstraint(Sketcher.Constraint("Vertical", 14, 3, 23, 3))
sketch7.addConstraint(Sketcher.Constraint("Vertical", 1, 2, 2, 2))
sketch7.addConstraint(Sketcher.Constraint("Vertical", 0, 2, 3, 2))
sketch7.addConstraint(Sketcher.Constraint("Vertical", 11, 2, 25, 2))
sketch7.addConstraint(Sketcher.Constraint("Vertical", 39, 1, 40, 1))
sketch7.addConstraint(Sketcher.Constraint("Vertical", 42, 1, 46, 1))
sketch7.addConstraint(Sketcher.Constraint("Vertical", 37, 1, 54, 1))
sketch7.addConstraint(Sketcher.Constraint("Vertical", 38, 1, 59, 1))
sketch7.addConstraint(Sketcher.Constraint("Equal", 3, 9))
sketch7.addConstraint(Sketcher.Constraint("Radius", 0, 11.0))
sketch7.addConstraint(Sketcher.Constraint("Radius", 2, 13.5))
sketch7.addConstraint(Sketcher.Constraint("Radius", 33, 8.5))
sketch7.addConstraint(Sketcher.Constraint("Distance", 5, 37.0))
sketch7.addConstraint(Sketcher.Constraint("DistanceX", -1, 1, 18, 2, 93.0))
sketch7.addConstraint(Sketcher.Constraint("DistanceY", 2, 3, -1, 1, 79.5))
sketch7.addConstraint(Sketcher.Constraint("DistanceX", -1, 1, 39, 1, 71.547901))
sketch7.addConstraint(Sketcher.Constraint("DistanceY", 41, 1, -1, 1, 71.547901))
sketch7.addConstraint(Sketcher.Constraint("Distance", 1, 8.533268))
sketch7.addConstraint(Sketcher.Constraint("DistanceX", -1, 1, 0, 2, 61.77165))
sketch7.addConstraint(Sketcher.Constraint("DistanceX", -1, 1, 4, 2, 49.094408))
sketch7.addConstraint(Sketcher.Constraint("DistanceX", -1, 1, 37, 1, 64.824682))
sketch7.addConstraint(Sketcher.Constraint("DistanceX", -1, 1, 38, 1, 59.874935))
pad4 = body.newObject("PartDesign::Pad", "Pad003")
pad4.Profile = sketch7
pad4.Length = 2

# Sketch on YZ plane
sketch8 = body.newObject("Sketcher::SketchObject", "Sketch007")
sketch8.AttachmentSupport = (doc.getObject("YZ_Plane"), [""])
sketch8.MapMode = "FlatFace"
sketch8.AttachmentOffset = App.Placement(App.Vector(0, 0, 107), App.Rotation())
add_polygon(sketch8, [(19, -5), (3, -5), (19, -21)])  # lines 0-2
sketch8.addConstraint(Sketcher.Constraint("Horizontal", 0))
sketch8.addConstraint(Sketcher.Constraint("Vertical", 2))
sketch8.addConstraint(Sketcher.Constraint("Equal", 0, 2))
sketch8.addConstraint(Sketcher.Constraint("DistanceX", 0, 2, 0, 1, 16.0))
sketch8.addConstraint(Sketcher.Constraint("DistanceX", -1, 1, 0, 2, 3.0))
sketch8.addConstraint(Sketcher.Constraint("DistanceY", 0, 2, -1, 1, 5.0))
pad5 = body.newObject("PartDesign::Pad", "Pad004")
pad5.Profile = sketch8
pad5.Length = 2
pad5.Reversed = True

# Sketch on YZ plane
sketch9 = body.newObject("Sketcher::SketchObject", "Sketch008")
sketch9.AttachmentSupport = (doc.getObject("YZ_Plane"), [""])
sketch9.MapMode = "FlatFace"
sketch9.AttachmentOffset = App.Placement(App.Vector(0, 0, 52), App.Rotation())
add_polygon(sketch9, [(19, -5), (3, -5), (19, -21)])  # lines 0-2
sketch9.addConstraint(Sketcher.Constraint("Horizontal", 0))
sketch9.addConstraint(Sketcher.Constraint("Vertical", 2))
sketch9.addConstraint(Sketcher.Constraint("Equal", 0, 2))
sketch9.addConstraint(Sketcher.Constraint("DistanceX", 0, 2, 0, 1, 16.0))
sketch9.addConstraint(Sketcher.Constraint("DistanceX", -1, 1, 0, 2, 3.0))
sketch9.addConstraint(Sketcher.Constraint("DistanceY", 0, 2, -1, 1, 5.0))
pad6 = body.newObject("PartDesign::Pad", "Pad005")
pad6.Profile = sketch9
pad6.Length = 2
doc.recompute()

chamfer = body.newObject("PartDesign::Chamfer", "Chamfer")
chamfer.Base = (pad6, edges_at(pad6, [(71, 21, -79.5)]))
chamfer.Size = 0.5

# Sketch on XY plane
sketch10 = body.newObject("Sketcher::SketchObject", "Sketch009")
sketch10.AttachmentSupport = (doc.getObject("XY_Plane"), [""])
sketch10.MapMode = "FlatFace"
sketch10.AttachmentOffset = App.Placement(App.Vector(0, 0, 5), App.Rotation())
sketch10.addGeometry(Part.Circle(App.Vector(80, -10, 0), App.Vector(0, 0, 1), 28), False)
sketch10.addGeometry(Part.Circle(App.Vector(80, -10, 0), App.Vector(0, 0, 1), 12), False)
sketch10.addConstraint(Sketcher.Constraint("Coincident", 1, 3, 0, 3))
sketch10.addConstraint(Sketcher.Constraint("Diameter", 0, 55.0))
sketch10.addConstraint(Sketcher.Constraint("Diameter", 1, 23.0))
sketch10.addConstraint(Sketcher.Constraint("DistanceY", 0, 3, -1, 1, 10.0))
sketch10.addConstraint(Sketcher.Constraint("DistanceX", -1, 1, 0, 3, 79.5))
pad7 = body.newObject("PartDesign::Pad", "Pad006")
pad7.Profile = sketch10
pad7.Length = 0.1

doc.recompute()
